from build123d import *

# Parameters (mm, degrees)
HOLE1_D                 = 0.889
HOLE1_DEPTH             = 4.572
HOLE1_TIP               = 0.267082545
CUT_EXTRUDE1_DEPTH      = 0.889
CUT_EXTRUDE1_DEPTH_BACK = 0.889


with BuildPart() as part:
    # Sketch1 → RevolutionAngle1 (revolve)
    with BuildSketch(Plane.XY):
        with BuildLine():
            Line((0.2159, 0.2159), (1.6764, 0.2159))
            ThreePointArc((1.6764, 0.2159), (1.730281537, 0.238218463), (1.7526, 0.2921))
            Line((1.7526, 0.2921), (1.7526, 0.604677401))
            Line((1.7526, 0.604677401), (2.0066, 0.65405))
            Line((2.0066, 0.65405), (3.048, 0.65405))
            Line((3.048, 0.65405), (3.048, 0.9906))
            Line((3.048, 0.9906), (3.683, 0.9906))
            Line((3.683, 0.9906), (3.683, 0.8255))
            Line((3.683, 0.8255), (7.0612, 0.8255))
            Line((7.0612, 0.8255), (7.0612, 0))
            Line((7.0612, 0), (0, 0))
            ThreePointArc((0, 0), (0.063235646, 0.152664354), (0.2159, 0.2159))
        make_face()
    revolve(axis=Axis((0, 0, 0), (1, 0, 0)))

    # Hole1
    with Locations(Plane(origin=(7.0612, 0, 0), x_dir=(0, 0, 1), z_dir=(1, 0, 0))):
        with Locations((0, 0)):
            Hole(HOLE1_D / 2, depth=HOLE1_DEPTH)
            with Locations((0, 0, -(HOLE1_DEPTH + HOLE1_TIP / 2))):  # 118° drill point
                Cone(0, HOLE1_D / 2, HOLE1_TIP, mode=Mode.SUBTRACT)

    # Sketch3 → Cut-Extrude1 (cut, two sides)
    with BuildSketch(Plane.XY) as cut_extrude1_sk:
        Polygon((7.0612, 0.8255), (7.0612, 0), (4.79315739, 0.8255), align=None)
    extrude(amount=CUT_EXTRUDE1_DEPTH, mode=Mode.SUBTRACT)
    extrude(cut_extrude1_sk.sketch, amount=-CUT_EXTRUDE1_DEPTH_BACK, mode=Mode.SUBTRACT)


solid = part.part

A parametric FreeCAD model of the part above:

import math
import FreeCAD as App
import Part
import Sketcher
from FreeCAD import Vector
Q = App.Units.Quantity


def add_polygon(sketch, points):
    """Adds a closed chain of lines whose ends are joined by coincident constraints."""
    first, n = sketch.GeometryCount, len(points)
    for a, b in zip(points, points[1:] + points[:1]):
        sketch.addGeometry(Part.LineSegment(App.Vector(*a, 0), App.Vector(*b, 0)), False)
    for i in range(n):
        sketch.addConstraint(Sketcher.Constraint("Coincident", first + i, 2, first + (i + 1) % n, 1))

doc = App.newDocument("Part")
params = doc.addObject("Spreadsheet::Sheet", "Params")
for row, (alias, value) in enumerate([
    ("sketch1_radius", "0.003 in"),
    ("sketch1_width", "0.278 in"),
    ("sketch1_width2", "0.133 in"),
    ("sketch1_width3", "0.025 in"),
    ("sketch1_width4", "0.041 in"),
    ("revolution_angle", "360 deg"),
    ("sketch2_diameter", "0.035 in"),
    ("hole_diameter", "0.035 in"),
    ("hole_depth", "0.18 in"),
], start=1):
    params.set(f"A{row}", alias)
    params.set(f"B{row}", "=" + value)
    params.setAlias(f"B{row}", alias)

body = doc.addObject("PartDesign::Body", "Body")

sketch1 = body.newObject("Sketcher::SketchObject", "Sketch")
sketch1.AttachmentSupport = (doc.getObject("XY_Plane"), [""])
sketch1.MapMode = "FlatFace"
sketch1.addGeometry([
    Part.LineSegment(Vector(1.6764, 0.2159, 0), Vector(0.2159, 0.2159, 0)),
    Part.ArcOfCircle(Part.Circle(Vector(0.2159, 0, 0), Vector(0, 0, 1), 0.2159), math.radians(90), math.radians(180)),
    Part.LineSegment(Vector(0, 0, 0), Vector(7.0612, 0, 0)),
    Part.LineSegment(Vector(7.0612, 0, 0), Vector(7.0612, 0.8255, 0)),
    Part.LineSegment(Vector(7.0612, 0.8255, 0), Vector(3.683, 0.8255, 0)),
    Part.LineSegment(Vector(3.683, 0.8255, 0), Vector(3.683, 0.9906, 0)),
    Part.LineSegment(Vector(3.683, 0.9906, 0), Vector(3.048, 0.9906, 0)),
    Part.LineSegment(Vector(3.048, 0.9906, 0), Vector(3.048, 0.65405, 0)),
    Part.LineSegment(Vector(3.048, 0.65405, 0), Vector(2.0066, 0.65405, 0)),
    Part.LineSegment(Vector(2.0066, 0.65405, 0), Vector(1.7526, 0.604677, 0)),
    Part.LineSegment(Vector(1.7526, 0.604677, 0), Vector(1.7526, 0.2921, 0)),
    Part.ArcOfCircle(Part.Circle(Vector(1.6764, 0.2921, 0), Vector(0, 0, 1), 0.0762), math.radians(-90.000001), math.radians(0.000001)),
], False)
sketch1.addConstraint([
    Sketcher.Constraint("Tangent", 0, 2, 1, 1),
    Sketcher.Constraint("Coincident", 1, 2, 2, 1),
    Sketcher.Constraint("Coincident", 2, 2, 3, 1),
    Sketcher.Constraint("Coincident", 3, 2, 4, 1),
    Sketcher.Constraint("Coincident", 4, 2, 5, 1),
    Sketcher.Constraint("Coincident", 5, 2, 6, 1),
    Sketcher.Constraint("Coincident", 6, 2, 7, 1),
    Sketcher.Constraint("Coincident", 7, 2, 8, 1),
    Sketcher.Constraint("Coincident", 8, 2, 9, 1),
    Sketcher.Constraint("Coincident", 9, 2, 10, 1),
    Sketcher.Constraint("Tangent", 10, 2, 11, 2),
    Sketcher.Constraint("Tangent", 11, 1, 0, 1),
    Sketcher.Constraint("Horizontal", 0),
    Sketcher.Constraint("Horizontal", 2),
    Sketcher.Constraint("Vertical", 3),
    Sketcher.Constraint("Horizontal", 4),
    Sketcher.Constraint("Vertical", 5),
    Sketcher.Constraint("Horizontal", 6),
    Sketcher.Constraint("Vertical", 7),
    Sketcher.Constraint("Horizontal", 8),
    Sketcher.Constraint("Vertical", 10),
    Sketcher.Constraint("Coincident", 1, 2, -1, 1),
    Sketcher.Constraint("PointOnObject", 1, 3, -1),
    Sketcher.Constraint("Angle", 9, Q("-169 deg")),
    Sketcher.Constraint("Radius", 11, Q("0.003 in")),
    Sketcher.Constraint("Radius", 1, Q("0.0085 in")),
    Sketcher.Constraint("DistanceX", 2, 1, 2, 2, Q("0.278 in")),
    Sketcher.Constraint("DistanceX", 4, 2, 4, 1, Q("0.133 in")),
    Sketcher.Constraint("DistanceX", 6, 2, 6, 1, Q("0.025 in")),
    Sketcher.Constraint("DistanceX", 8, 2, 8, 1, Q("0.041 in")),
    Sketcher.Constraint("DistanceX", 9, 2, 8, 2, Q("0.01 in")),
    Sketcher.Constraint("DistanceY", 3, 1, 3, 2, Q("0.0325 in")),
    Sketcher.Constraint("DistanceY", 5, 1, 5, 2, Q("0.0065 in")),
    Sketcher.Constraint("DistanceY", 7, 2, 7, 1, 0.33655),
])
sketch1.setExpression("Constraints[24]", "Params.sketch1_radius")
sketch1.setExpression("Constraints[26]", "Params.sketch1_width")
sketch1.setExpression("Constraints[27]", "Params.sketch1_width2")
sketch1.setExpression("Constraints[28]", "Params.sketch1_width3")
sketch1.setExpression("Constraints[29]", "Params.sketch1_width4")
revolution = body.newObject("PartDesign::Revolution", "Revolution")
revolution.Profile = sketch1
revolution.ReferenceAxis = (sketch1, ["H_Axis"])
revolution.setExpression("Angle", "Params.revolution_angle")

sketch2 = body.newObject("Sketcher::SketchObject", "Sketch001")
sketch2.AttachmentSupport = (doc.getObject("YZ_Plane"), [""])
sketch2.MapMode = "FlatFace"
sketch2.AttachmentOffset = App.Placement(Vector(0, 0, 0.278 * 25.4), App.Rotation())
sketch2.addGeometry(Part.Circle(Vector(0, 0, 0), Vector(0, 0, 1), 0.4445), False)
sketch2.addConstraint([
    Sketcher.Constraint("Coincident", 0, 3, -1, 1),
    Sketcher.Constraint("Diameter", 0, Q("0.035 in")),
])
sketch2.setExpression("Constraints[1]", "Params.sketch2_diameter")
doc.recompute()
hole = body.newObject("PartDesign::Hole", "Hole")
hole.Profile = sketch2
hole.ThreadType = "None"
hole.setExpression("Diameter", "Params.hole_diameter")
hole.DepthType = "Dimension"
hole.setExpression("Depth", "Params.hole_depth")
hole.DrillPoint = "Angled"
hole.DrillPointAngle = 118

sketch3 = body.newObject("Sketcher::SketchObject", "Sketch002")
sketch3.AttachmentSupport = (doc.getObject("XY_Plane"), [""])
sketch3.MapMode = "FlatFace"
add_polygon(sketch3, [(7.0612, 0), (7.0612, 0.8255), (4.793157, 0.8255)])
sketch3.addConstraint([
    Sketcher.Constraint("Vertical", 0),
    Sketcher.Constraint("Horizontal", 1),
    Sketcher.Constraint("PointOnObject", 2, 2, -1),
    Sketcher.Constraint("Angle", 2, Q("-20 deg")),
    Sketcher.Constraint("DistanceY", 0, 1, 0, 2, Q("0.0325 in")),
    Sketcher.Constraint("DistanceX", -1, 1, 0, 2, Q("0.278 in")),
])
pocket1 = body.newObject("PartDesign::Pocket", "Pocket")
pocket1.Profile = sketch3
pocket1.Type = "ThroughAll"
pocket1.Midplane = True

doc.recompute()
